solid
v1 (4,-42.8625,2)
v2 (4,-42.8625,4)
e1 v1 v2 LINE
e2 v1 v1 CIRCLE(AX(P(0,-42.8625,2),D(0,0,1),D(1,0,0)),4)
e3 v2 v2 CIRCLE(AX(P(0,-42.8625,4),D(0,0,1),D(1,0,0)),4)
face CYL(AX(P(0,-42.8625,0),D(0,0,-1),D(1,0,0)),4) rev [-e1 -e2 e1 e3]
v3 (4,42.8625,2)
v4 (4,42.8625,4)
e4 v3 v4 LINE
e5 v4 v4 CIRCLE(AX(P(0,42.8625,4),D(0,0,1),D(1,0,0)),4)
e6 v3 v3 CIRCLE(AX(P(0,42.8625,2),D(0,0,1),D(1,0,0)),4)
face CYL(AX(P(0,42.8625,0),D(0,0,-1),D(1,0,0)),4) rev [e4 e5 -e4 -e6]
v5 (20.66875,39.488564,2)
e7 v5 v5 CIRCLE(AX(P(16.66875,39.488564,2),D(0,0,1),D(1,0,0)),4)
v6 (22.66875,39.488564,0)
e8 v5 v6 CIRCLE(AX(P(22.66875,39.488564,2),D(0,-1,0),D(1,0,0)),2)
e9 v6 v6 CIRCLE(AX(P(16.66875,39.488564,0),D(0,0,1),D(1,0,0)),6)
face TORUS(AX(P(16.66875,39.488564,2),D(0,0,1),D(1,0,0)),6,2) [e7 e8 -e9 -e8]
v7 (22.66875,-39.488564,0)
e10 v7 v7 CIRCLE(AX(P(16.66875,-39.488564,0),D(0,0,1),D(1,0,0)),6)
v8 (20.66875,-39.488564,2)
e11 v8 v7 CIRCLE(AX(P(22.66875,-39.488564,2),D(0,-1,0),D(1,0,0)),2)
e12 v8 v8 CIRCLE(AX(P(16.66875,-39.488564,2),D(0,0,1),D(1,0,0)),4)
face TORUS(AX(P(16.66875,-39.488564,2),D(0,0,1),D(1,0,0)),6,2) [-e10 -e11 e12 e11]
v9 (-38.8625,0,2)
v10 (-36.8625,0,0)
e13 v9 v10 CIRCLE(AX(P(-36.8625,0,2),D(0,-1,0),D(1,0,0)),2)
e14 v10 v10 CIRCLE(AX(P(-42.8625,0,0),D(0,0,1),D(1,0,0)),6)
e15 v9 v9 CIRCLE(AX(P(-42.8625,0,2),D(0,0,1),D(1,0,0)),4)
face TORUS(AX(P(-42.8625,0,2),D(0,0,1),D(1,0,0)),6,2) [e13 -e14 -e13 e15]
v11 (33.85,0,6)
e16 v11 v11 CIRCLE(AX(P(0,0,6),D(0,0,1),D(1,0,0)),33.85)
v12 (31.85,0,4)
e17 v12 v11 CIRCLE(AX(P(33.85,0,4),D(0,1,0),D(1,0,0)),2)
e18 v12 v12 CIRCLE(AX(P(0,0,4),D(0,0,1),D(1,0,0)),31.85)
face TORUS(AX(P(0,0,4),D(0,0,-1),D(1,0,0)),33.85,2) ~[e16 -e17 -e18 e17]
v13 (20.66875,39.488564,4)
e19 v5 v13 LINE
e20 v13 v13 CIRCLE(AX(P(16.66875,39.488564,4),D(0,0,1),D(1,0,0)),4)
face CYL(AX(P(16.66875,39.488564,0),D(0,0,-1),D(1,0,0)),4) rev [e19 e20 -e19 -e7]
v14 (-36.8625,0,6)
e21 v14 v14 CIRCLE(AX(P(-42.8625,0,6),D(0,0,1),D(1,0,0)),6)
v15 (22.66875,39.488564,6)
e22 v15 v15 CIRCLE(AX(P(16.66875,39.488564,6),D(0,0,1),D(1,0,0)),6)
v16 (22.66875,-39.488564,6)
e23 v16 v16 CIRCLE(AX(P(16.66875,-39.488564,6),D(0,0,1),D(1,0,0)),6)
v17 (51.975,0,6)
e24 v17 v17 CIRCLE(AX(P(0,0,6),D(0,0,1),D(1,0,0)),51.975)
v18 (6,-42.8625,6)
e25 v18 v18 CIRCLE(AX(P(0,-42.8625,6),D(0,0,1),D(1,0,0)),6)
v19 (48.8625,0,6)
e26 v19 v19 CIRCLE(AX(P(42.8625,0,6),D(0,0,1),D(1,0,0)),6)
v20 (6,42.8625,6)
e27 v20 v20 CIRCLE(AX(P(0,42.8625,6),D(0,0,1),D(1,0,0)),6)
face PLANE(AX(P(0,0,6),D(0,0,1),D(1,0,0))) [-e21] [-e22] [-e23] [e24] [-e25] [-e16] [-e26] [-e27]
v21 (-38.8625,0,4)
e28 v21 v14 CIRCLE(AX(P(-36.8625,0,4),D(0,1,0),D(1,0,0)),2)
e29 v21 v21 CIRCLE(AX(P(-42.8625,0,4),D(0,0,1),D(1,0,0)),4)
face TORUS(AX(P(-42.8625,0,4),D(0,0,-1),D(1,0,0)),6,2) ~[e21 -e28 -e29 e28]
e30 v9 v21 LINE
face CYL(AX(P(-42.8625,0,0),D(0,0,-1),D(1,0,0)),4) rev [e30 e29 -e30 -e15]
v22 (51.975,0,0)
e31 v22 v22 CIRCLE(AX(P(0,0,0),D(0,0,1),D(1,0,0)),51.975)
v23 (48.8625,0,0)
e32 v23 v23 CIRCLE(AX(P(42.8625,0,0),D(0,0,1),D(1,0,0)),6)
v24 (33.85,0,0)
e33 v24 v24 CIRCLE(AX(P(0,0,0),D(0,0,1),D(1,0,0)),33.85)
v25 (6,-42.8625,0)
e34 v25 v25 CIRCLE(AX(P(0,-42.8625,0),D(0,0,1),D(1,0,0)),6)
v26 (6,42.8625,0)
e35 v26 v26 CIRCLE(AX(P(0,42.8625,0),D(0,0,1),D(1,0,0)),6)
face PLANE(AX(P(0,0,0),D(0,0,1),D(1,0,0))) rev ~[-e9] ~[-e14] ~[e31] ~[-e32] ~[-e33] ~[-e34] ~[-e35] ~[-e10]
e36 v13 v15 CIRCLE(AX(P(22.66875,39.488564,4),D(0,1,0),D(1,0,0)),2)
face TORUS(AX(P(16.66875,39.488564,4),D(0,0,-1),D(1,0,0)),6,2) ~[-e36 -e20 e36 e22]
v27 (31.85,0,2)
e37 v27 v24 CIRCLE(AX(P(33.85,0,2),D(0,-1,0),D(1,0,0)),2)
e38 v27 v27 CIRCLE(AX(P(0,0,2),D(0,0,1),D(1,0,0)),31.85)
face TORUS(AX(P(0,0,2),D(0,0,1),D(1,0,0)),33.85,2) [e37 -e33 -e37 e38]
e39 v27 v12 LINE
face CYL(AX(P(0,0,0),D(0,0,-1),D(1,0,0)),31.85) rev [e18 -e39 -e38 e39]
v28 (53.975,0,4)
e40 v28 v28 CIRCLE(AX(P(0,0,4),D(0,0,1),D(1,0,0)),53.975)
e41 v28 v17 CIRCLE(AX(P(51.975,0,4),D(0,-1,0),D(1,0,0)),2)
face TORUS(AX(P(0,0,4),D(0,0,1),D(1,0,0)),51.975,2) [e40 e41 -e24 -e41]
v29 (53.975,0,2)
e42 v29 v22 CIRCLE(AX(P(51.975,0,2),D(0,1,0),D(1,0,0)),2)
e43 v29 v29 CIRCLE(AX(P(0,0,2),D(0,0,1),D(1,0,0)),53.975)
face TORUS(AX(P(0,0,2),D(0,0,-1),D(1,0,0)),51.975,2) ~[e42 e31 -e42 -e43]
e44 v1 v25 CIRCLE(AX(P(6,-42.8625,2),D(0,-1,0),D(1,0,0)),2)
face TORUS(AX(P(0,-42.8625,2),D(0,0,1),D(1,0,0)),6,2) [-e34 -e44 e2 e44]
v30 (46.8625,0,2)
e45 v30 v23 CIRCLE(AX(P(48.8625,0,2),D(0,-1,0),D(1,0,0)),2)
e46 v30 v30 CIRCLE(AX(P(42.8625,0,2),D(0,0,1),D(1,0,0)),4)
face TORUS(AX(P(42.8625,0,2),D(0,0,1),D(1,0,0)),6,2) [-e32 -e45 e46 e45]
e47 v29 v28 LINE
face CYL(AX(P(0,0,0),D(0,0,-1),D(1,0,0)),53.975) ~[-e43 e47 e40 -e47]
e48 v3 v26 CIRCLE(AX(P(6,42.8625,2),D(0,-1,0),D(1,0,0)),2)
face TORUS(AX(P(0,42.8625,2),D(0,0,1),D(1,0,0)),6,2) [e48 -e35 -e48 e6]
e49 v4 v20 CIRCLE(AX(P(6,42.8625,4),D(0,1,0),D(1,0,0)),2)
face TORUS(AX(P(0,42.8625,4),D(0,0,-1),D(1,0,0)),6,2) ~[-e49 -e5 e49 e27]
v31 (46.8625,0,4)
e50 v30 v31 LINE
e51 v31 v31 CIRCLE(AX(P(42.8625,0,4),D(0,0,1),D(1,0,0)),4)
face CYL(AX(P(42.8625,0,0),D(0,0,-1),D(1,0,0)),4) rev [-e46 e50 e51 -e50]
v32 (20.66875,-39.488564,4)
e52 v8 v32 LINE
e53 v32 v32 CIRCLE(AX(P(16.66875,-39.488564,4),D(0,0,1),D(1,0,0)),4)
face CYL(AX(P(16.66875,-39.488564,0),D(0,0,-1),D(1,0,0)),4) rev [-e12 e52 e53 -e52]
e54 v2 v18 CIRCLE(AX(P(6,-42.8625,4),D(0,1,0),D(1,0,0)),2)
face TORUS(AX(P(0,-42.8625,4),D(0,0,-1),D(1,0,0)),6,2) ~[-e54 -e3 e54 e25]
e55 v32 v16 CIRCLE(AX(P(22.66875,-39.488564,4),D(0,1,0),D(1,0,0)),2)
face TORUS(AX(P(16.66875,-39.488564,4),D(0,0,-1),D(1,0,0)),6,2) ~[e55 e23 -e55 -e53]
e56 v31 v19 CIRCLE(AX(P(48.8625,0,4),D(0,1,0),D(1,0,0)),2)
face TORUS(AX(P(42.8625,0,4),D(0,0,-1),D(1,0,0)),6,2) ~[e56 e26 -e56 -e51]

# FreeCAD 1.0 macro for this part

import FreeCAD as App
import Part
import Sketcher
from FreeCAD import Vector


def edges_at(feature, points):
    """Names of the edges that pass closest to the given points."""
    edges = feature.Shape.Edges
    near = lambda p: min(range(len(edges)), key=lambda i: edges[i].distToShape(Part.Vertex(*p))[0])
    return sorted({f"Edge{near(p) + 1}" for p in points})

doc = App.newDocument("Part")
body = doc.addObject("PartDesign::Body", "Body")

sketch1 = body.newObject("Sketcher::SketchObject", "Sketch")
sketch1.AttachmentSupport = (doc.getObject("XY_Plane"), [""])
sketch1.MapMode = "FlatFace"
sketch1.addGeometry([
    Part.Circle(Vector(0, 0, 0), Vector(0, 0, 1), 54),
    Part.Circle(Vector(0, -42.9, 0), Vector(0, 0, 1), 4),
    Part.Circle(Vector(16.7, -39.5, 0), Vector(0, 0, 1), 4),
    Part.Circle(Vector(-42.9, 0, 0), Vector(0, 0, 1), 4),
    Part.Circle(Vector(0, 0, 0), Vector(0, 0, 1), 31.9),
    Part.Circle(Vector(42.9, 0, 0), Vector(0, 0, 1), 4),
    Part.Circle(Vector(0, 42.9, 0), Vector(0, 0, 1), 4),
    Part.Circle(Vector(16.7, 39.5, 0), Vector(0, 0, 1), 4),
], False)
sketch1.addConstraint([
    Sketcher.Constraint("Coincident", 0, 3, -1, 1),
    Sketcher.Constraint("Coincident", 4, 3, -1, 1),
    Sketcher.Constraint("Equal", 1, 2),
    Sketcher.Constraint("Equal", 2, 3),
    Sketcher.Constraint("Equal", 3, 5),
    Sketcher.Constraint("Equal", 5, 6),
    Sketcher.Constraint("Equal", 6, 7),
    Sketcher.Constraint("Symmetric", 3, 3, 5, 3, -1, 1),
    Sketcher.Constraint("Symmetric", 1, 3, 6, 3, -1, 1),
    Sketcher.Constraint("Symmetric", 2, 3, 7, 3, -1),
    Sketcher.Constraint("PointOnObject", 1, 3, -2),
    Sketcher.Constraint("PointOnObject", 3, 3, -1),
    Sketcher.Constraint("Diameter", 1, 8.0),
    Sketcher.Constraint("Diameter", 4, 63.7),
    Sketcher.Constraint("Diameter", 0, 107.95),
    Sketcher.Constraint("DistanceX", 3, 3, 5, 3, 85.725),
    Sketcher.Constraint("DistanceY", 1, 3, -1, 1, 42.8625),
    Sketcher.Constraint("DistanceX", -1, 1, 2, 3, 16.66875),
    Sketcher.Constraint("DistanceY", 2, 3, -1, 1, 39.488564),
])
pad1 = body.newObject("PartDesign::Pad", "Pad")
pad1.Profile = sketch1
pad1.Length = 6
doc.recompute()

fillet = body.newObject("PartDesign::Fillet", "Fillet")
fillet.Base = (pad1, edges_at(pad1, [
    (-53.975, 0, 6),
    (-53.975, 0, 0),
    (-31.85, 0, 6),
    (-31.85, 0, 0),
    (38.862, 0, 6),
    (-4, -42.862, 6),
    (-46.862, 0, 6),
    (-4, 42.862, 6),
    (12.669, -39.489, 6),
    (12.669, 39.489, 6),
    (12.669, -39.489, 0),
    (12.669, 39.489, 0),
    (38.862, 0, 0),
    (-4, -42.862, 0),
    (-46.862, 0, 0),
    (-4, 42.862, 0),
]))
fillet.Radius = 2

doc.recompute()
